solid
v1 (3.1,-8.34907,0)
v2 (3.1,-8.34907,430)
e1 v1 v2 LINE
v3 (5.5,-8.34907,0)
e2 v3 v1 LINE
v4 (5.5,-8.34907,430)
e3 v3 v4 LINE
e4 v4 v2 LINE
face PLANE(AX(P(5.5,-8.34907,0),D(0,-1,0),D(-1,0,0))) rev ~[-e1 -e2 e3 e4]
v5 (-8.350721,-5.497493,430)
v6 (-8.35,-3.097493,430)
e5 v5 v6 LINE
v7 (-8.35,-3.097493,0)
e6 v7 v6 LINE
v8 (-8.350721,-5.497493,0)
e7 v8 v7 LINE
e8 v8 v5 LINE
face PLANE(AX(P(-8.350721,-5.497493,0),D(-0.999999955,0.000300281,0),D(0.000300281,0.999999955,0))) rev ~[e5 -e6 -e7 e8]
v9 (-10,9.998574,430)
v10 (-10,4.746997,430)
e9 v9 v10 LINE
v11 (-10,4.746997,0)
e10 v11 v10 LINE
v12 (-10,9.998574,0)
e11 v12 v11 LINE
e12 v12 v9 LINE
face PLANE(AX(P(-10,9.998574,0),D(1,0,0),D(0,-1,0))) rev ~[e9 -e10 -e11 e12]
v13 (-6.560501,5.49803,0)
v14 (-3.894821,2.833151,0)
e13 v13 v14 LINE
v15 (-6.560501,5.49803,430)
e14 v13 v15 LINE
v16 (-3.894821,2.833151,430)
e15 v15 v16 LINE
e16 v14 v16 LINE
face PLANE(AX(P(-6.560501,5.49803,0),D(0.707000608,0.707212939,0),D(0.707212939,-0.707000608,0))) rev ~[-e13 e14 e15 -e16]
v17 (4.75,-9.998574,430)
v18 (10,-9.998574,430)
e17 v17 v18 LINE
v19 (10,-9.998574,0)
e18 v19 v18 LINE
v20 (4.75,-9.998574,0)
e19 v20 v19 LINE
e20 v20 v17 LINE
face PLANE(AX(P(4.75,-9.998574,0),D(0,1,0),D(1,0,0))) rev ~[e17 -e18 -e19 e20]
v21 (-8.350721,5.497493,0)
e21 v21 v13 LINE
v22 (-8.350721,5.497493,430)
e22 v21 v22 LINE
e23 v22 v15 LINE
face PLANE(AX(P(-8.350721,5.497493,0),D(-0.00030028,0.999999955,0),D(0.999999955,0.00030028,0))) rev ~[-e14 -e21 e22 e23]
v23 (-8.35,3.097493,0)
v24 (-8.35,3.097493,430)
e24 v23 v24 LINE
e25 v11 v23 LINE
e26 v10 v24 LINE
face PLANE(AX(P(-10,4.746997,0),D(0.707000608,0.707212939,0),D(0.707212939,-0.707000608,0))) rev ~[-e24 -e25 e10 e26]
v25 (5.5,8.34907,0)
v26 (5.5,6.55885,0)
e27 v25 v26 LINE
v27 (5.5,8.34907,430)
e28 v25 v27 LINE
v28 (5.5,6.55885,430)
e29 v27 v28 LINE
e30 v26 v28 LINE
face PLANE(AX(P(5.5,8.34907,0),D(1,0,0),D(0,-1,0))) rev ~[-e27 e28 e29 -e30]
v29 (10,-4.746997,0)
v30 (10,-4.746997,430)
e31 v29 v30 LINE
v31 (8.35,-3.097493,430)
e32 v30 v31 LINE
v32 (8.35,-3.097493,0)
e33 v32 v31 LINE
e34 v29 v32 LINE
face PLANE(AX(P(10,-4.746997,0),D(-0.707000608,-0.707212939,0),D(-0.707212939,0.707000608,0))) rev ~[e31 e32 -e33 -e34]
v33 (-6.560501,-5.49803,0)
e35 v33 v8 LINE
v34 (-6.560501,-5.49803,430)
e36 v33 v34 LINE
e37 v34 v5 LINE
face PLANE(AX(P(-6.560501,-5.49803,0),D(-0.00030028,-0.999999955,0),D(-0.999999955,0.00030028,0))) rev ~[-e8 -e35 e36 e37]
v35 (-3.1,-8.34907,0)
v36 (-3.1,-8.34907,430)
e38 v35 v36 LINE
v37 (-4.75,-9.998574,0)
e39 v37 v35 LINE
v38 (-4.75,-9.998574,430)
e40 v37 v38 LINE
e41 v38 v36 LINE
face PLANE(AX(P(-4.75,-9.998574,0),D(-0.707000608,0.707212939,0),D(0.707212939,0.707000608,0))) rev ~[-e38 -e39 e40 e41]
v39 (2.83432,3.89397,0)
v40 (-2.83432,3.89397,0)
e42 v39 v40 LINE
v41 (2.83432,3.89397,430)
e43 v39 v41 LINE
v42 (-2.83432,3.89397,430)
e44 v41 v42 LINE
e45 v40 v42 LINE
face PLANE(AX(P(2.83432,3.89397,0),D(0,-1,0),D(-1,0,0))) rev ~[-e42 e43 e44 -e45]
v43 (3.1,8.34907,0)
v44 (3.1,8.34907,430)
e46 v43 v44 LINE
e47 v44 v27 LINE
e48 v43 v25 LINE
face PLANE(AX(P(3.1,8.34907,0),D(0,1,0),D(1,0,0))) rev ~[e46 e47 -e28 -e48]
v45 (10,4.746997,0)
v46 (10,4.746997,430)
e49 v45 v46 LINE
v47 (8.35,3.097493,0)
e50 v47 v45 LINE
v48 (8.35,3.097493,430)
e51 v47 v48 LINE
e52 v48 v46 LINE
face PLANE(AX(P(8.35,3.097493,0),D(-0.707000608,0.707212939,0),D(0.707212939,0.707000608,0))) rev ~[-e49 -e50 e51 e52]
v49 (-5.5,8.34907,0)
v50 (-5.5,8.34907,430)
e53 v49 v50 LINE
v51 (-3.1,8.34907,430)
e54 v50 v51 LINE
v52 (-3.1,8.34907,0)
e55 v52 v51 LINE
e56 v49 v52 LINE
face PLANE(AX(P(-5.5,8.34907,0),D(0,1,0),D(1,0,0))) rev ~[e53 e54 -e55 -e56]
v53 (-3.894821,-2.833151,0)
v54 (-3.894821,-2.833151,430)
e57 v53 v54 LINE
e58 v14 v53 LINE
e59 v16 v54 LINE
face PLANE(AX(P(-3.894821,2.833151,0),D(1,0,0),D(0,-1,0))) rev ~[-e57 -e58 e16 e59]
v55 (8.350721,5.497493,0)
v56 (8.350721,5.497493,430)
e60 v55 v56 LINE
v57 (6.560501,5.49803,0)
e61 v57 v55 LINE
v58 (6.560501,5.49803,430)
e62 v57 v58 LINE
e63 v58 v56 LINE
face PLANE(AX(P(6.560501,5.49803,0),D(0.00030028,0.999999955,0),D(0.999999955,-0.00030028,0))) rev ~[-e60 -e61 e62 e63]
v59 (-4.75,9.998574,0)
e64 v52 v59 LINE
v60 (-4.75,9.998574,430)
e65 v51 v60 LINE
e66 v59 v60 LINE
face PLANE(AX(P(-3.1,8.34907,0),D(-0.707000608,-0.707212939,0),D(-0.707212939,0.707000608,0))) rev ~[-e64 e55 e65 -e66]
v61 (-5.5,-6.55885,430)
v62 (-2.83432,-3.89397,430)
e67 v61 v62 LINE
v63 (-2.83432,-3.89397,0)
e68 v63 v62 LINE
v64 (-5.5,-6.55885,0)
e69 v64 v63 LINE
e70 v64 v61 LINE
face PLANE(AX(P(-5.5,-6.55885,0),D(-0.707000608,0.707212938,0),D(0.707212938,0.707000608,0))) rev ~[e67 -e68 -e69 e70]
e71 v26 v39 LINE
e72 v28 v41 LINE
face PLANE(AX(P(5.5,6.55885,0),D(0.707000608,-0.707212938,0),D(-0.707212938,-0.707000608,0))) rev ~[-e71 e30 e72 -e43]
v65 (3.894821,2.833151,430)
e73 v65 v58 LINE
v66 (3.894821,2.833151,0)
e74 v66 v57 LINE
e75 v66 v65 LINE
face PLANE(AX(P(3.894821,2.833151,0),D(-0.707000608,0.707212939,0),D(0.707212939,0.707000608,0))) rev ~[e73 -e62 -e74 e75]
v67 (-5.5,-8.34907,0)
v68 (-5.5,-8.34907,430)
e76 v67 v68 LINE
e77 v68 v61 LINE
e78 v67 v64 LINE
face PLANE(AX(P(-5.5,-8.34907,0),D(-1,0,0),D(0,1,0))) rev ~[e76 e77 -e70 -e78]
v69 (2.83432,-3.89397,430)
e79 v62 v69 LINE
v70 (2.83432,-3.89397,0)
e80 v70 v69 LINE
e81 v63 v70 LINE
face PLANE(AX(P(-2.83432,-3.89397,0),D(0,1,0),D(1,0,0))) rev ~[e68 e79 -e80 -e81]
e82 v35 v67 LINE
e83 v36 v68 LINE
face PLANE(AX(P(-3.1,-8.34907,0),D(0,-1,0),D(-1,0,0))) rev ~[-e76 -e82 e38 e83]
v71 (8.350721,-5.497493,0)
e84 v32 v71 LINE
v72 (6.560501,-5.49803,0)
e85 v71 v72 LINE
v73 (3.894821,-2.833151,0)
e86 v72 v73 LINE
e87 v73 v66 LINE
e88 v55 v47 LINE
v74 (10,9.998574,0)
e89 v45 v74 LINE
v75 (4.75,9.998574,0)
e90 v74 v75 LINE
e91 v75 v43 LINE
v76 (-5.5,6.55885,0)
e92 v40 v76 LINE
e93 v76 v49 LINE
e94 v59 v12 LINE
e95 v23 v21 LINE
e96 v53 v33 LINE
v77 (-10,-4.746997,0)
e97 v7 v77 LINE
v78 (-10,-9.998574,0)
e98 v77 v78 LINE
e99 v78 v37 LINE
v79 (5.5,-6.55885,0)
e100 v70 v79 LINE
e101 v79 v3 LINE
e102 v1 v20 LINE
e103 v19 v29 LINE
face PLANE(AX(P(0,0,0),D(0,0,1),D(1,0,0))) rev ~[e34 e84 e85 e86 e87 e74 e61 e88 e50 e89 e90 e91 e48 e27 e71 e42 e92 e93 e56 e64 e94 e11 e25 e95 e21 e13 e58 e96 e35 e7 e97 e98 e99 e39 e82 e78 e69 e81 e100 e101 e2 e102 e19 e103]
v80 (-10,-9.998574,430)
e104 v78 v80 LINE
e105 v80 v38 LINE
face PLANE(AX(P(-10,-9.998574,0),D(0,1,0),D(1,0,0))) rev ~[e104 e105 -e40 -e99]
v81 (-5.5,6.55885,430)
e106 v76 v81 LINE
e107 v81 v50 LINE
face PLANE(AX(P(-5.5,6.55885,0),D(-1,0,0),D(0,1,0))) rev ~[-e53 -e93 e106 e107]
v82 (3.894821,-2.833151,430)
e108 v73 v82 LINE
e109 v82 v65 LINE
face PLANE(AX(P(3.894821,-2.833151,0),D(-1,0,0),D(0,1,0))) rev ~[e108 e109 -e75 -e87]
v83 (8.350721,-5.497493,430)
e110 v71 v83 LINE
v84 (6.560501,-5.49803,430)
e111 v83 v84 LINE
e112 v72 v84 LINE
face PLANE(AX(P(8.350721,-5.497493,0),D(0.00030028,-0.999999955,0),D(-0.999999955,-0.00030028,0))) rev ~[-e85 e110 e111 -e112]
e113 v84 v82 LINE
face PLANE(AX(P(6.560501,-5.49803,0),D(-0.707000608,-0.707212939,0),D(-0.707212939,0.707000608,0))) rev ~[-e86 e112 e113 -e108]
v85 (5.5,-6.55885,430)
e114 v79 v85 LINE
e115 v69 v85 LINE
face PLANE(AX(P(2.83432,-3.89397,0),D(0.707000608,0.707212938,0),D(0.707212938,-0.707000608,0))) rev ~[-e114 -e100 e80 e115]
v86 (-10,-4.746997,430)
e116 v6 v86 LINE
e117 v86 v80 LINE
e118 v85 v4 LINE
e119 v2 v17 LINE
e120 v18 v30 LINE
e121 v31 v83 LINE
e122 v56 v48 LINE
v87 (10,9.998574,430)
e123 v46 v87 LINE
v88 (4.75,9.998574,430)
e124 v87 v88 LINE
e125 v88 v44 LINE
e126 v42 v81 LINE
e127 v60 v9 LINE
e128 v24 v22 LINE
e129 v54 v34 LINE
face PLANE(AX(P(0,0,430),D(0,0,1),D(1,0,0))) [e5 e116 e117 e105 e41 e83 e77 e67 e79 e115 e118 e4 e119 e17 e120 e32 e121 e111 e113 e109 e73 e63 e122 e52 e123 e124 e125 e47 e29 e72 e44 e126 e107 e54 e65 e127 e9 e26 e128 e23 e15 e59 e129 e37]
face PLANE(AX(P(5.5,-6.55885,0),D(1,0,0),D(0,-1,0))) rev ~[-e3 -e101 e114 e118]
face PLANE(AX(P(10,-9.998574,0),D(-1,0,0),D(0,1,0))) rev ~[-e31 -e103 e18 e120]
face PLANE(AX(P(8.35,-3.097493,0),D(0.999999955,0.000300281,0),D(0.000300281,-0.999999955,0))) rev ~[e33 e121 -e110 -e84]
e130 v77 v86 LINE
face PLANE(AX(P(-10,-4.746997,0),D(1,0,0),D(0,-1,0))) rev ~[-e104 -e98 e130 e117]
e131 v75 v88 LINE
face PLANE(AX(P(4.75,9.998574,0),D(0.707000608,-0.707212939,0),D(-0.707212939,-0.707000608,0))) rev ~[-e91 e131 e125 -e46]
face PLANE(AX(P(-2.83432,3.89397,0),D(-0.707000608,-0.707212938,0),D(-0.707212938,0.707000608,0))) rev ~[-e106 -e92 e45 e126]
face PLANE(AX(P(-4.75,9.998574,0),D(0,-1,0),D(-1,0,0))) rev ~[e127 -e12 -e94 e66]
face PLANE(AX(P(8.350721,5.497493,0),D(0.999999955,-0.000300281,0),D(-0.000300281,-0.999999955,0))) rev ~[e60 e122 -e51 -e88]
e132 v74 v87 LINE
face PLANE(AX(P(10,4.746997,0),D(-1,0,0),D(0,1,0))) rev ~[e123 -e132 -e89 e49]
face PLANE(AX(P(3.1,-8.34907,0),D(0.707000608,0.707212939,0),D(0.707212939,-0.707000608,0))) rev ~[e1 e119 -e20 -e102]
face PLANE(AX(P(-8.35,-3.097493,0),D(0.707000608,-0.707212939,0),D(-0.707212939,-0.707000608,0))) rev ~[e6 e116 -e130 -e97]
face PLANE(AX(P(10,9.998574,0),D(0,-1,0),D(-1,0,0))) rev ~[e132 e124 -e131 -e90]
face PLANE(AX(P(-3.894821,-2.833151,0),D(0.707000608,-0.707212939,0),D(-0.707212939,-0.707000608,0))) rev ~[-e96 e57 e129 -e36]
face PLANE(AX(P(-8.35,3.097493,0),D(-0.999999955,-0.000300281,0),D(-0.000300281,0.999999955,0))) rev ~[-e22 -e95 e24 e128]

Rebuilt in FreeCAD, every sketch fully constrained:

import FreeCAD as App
import Part
import Sketcher

V = App.Vector


def add_polygon(sketch, points):
    """Adds a closed chain of lines whose ends are joined by coincident constraints."""
    first, n = sketch.GeometryCount, len(points)
    for a, b in zip(points, points[1:] + points[:1]):
        sketch.addGeometry(Part.LineSegment(App.Vector(*a, 0), App.Vector(*b, 0)), False)
    for i in range(n):
        sketch.addConstraint(Sketcher.Constraint("Coincident", first + i, 2, first + (i + 1) % n, 1))

doc = App.newDocument("Part")
params = doc.addObject("Spreadsheet::Sheet", "Params")
for row, (alias, value) in enumerate([
    ("sketch1_width", "2.4 mm"),
    ("sketch1_length", "2.4 mm"),
    ("sketch1_width2", "5.25 mm"),
    ("pad1_length", "430 mm"),
], start=1):
    params.set(f"A{row}", alias)
    params.set(f"B{row}", "=" + value)
    params.setAlias(f"B{row}", alias)

body = doc.addObject("PartDesign::Body", "Body")

# Sketch on XY plane
sketch1 = body.newObject("Sketcher::SketchObject", "Sketch")
sketch1.AttachmentSupport = (doc.getObject("XY_Plane"), [""])
sketch1.MapMode = "FlatFace"
add_polygon(sketch1, [(2.8, 3.9), (-2.8, 3.9), (-5.5, 6.6), (-5.5, 8.3), (-3.1, 8.3), (-4.8, 10), (-10, 10), (-10, 4.7), (-8.3, 3.1), (-8.4, 5.5), (-6.6, 5.5), (-3.9, 2.8), (-3.9, -2.8), (-6.6, -5.5), (-8.4, -5.5), (-8.3, -3.1), (-10, -4.7), (-10, -10), (-4.8, -10), (-3.1, -8.3), (-5.5, -8.3), (-5.5, -6.6), (-2.8, -3.9), (2.8, -3.9), (5.5, -6.6), (5.5, -8.3), (3.1, -8.3), (4.8, -10), (10, -10), (10, -4.7), (8.3, -3.1), (8.4, -5.5), (6.6, -5.5), (3.9, -2.8), (3.9, 2.8), (6.6, 5.5), (8.4, 5.5), (8.3, 3.1), (10, 4.7), (10, 10), (4.8, 10), (3.1, 8.3), (5.5, 8.3), (5.5, 6.6)])  # lines 0-43
sketch1.addConstraint([
    Sketcher.Constraint("Horizontal", 0),
    Sketcher.Constraint("Vertical", 2),
    Sketcher.Constraint("Horizontal", 3),
    Sketcher.Constraint("Horizontal", 5),
    Sketcher.Constraint("Vertical", 6),
    Sketcher.Constraint("Vertical", 11),
    Sketcher.Constraint("Vertical", 16),
    Sketcher.Constraint("Horizontal", 17),
    Sketcher.Constraint("Horizontal", 19),
    Sketcher.Constraint("Vertical", 20),
    Sketcher.Constraint("Horizontal", 22),
    Sketcher.Constraint("Vertical", 24),
    Sketcher.Constraint("Horizontal", 25),
    Sketcher.Constraint("Horizontal", 27),
    Sketcher.Constraint("Vertical", 28),
    Sketcher.Constraint("Vertical", 33),
    Sketcher.Constraint("Vertical", 38),
    Sketcher.Constraint("Horizontal", 39),
    Sketcher.Constraint("Horizontal", 41),
    Sketcher.Constraint("Vertical", 42),
    Sketcher.Constraint("Symmetric", 0, 2, 22, 2, -1, 1),
    Sketcher.Constraint("Symmetric", 1, 2, 23, 2, -1, 1),
    Sketcher.Constraint("Symmetric", 3, 2, 25, 2, -1, 1),
    Sketcher.Constraint("Symmetric", 4, 2, 26, 2, -1, 1),
    Sketcher.Constraint("Symmetric", 6, 2, 28, 2, -1, 1),
    Sketcher.Constraint("Symmetric", 7, 2, 29, 2, -1, 1),
    Sketcher.Constraint("Symmetric", 8, 2, 30, 2, -1, 1),
    Sketcher.Constraint("Symmetric", 9, 2, 31, 2, -1, 1),
    Sketcher.Constraint("Symmetric", 10, 2, 32, 2, -1, 1),
    Sketcher.Constraint("Symmetric", 12, 2, 34, 2, -1, 1),
    Sketcher.Constraint("Symmetric", 13, 2, 35, 2, -1, 1),
    Sketcher.Constraint("Symmetric", 14, 2, 36, 2, -1, 1),
    Sketcher.Constraint("Symmetric", 15, 2, 37, 2, -1, 1),
    Sketcher.Constraint("Symmetric", 17, 2, 39, 2, -1, 1),
    Sketcher.Constraint("Symmetric", 18, 2, 40, 2, -1, 1),
    Sketcher.Constraint("Symmetric", 20, 2, 42, 2, -1, 1),
    Sketcher.Constraint("Symmetric", 20, 2, 23, 2, -2),
    Sketcher.Constraint("Symmetric", 18, 2, 25, 2, -2),
    Sketcher.Constraint("Symmetric", 17, 2, 26, 2, -2),
    Sketcher.Constraint("Symmetric", 15, 2, 28, 2, -2),
    Sketcher.Constraint("Symmetric", 14, 2, 29, 2, -2),
    Sketcher.Constraint("Symmetric", 13, 2, 30, 2, -2),
    Sketcher.Constraint("Symmetric", 12, 2, 31, 2, -2),
    Sketcher.Constraint("Parallel", 1, 4),
    Sketcher.Constraint("Parallel", 4, 7),
    Sketcher.Constraint("Perpendicular", 8, 9),
    Sketcher.Constraint("Parallel", 7, 10),
    Sketcher.Constraint("Parallel", 12, 15),
    Sketcher.Constraint("Parallel", 18, 21),
    Sketcher.Constraint("Parallel", 21, 34),
    Sketcher.Constraint("Parallel", 40, 43),
    Sketcher.Constraint("Equal", 4, 7),
    Sketcher.Constraint("Equal", 1, 10),
    Sketcher.Constraint("DistanceX", 3, 1, 3, 2, 2.4),
    Sketcher.Constraint("DistanceX", 5, 2, -1, 1, 10.0),
    Sketcher.Constraint("Distance", 8, 2.4),
    Sketcher.Constraint("DistanceX", 5, 2, 5, 1, 5.25),
    Sketcher.Constraint("DistanceX", 1, 2, -1, 1, 5.5),
    Sketcher.Constraint("DistanceY", 11, 2, 11, 1, 5.666302),
    Sketcher.Constraint("DistanceY", 12, 2, 0, 2, 9.392001),
    Sketcher.Constraint("DistanceX", 0, 2, 0, 1, 5.668641),
    Sketcher.Constraint("DistanceY", 2, 1, 2, 2, 1.79022),
    Sketcher.Constraint("DistanceX", 9, 2, -1, 1, 6.560501),
    Sketcher.Constraint("DistanceY", 0, 2, 2, 2, 4.455099),
    Sketcher.Constraint("DistanceX", 8, 2, 10, 2, 4.455899),
])
sketch1.setExpression("Constraints[97]", "Params.sketch1_width")
sketch1.setExpression("Constraints[99]", "Params.sketch1_length")
sketch1.setExpression("Constraints[100]", "Params.sketch1_width2")
pad1 = body.newObject("PartDesign::Pad", "Pad")
pad1.Profile = sketch1
pad1.setExpression("Length", "Params.pad1_length")

doc.recompute()
